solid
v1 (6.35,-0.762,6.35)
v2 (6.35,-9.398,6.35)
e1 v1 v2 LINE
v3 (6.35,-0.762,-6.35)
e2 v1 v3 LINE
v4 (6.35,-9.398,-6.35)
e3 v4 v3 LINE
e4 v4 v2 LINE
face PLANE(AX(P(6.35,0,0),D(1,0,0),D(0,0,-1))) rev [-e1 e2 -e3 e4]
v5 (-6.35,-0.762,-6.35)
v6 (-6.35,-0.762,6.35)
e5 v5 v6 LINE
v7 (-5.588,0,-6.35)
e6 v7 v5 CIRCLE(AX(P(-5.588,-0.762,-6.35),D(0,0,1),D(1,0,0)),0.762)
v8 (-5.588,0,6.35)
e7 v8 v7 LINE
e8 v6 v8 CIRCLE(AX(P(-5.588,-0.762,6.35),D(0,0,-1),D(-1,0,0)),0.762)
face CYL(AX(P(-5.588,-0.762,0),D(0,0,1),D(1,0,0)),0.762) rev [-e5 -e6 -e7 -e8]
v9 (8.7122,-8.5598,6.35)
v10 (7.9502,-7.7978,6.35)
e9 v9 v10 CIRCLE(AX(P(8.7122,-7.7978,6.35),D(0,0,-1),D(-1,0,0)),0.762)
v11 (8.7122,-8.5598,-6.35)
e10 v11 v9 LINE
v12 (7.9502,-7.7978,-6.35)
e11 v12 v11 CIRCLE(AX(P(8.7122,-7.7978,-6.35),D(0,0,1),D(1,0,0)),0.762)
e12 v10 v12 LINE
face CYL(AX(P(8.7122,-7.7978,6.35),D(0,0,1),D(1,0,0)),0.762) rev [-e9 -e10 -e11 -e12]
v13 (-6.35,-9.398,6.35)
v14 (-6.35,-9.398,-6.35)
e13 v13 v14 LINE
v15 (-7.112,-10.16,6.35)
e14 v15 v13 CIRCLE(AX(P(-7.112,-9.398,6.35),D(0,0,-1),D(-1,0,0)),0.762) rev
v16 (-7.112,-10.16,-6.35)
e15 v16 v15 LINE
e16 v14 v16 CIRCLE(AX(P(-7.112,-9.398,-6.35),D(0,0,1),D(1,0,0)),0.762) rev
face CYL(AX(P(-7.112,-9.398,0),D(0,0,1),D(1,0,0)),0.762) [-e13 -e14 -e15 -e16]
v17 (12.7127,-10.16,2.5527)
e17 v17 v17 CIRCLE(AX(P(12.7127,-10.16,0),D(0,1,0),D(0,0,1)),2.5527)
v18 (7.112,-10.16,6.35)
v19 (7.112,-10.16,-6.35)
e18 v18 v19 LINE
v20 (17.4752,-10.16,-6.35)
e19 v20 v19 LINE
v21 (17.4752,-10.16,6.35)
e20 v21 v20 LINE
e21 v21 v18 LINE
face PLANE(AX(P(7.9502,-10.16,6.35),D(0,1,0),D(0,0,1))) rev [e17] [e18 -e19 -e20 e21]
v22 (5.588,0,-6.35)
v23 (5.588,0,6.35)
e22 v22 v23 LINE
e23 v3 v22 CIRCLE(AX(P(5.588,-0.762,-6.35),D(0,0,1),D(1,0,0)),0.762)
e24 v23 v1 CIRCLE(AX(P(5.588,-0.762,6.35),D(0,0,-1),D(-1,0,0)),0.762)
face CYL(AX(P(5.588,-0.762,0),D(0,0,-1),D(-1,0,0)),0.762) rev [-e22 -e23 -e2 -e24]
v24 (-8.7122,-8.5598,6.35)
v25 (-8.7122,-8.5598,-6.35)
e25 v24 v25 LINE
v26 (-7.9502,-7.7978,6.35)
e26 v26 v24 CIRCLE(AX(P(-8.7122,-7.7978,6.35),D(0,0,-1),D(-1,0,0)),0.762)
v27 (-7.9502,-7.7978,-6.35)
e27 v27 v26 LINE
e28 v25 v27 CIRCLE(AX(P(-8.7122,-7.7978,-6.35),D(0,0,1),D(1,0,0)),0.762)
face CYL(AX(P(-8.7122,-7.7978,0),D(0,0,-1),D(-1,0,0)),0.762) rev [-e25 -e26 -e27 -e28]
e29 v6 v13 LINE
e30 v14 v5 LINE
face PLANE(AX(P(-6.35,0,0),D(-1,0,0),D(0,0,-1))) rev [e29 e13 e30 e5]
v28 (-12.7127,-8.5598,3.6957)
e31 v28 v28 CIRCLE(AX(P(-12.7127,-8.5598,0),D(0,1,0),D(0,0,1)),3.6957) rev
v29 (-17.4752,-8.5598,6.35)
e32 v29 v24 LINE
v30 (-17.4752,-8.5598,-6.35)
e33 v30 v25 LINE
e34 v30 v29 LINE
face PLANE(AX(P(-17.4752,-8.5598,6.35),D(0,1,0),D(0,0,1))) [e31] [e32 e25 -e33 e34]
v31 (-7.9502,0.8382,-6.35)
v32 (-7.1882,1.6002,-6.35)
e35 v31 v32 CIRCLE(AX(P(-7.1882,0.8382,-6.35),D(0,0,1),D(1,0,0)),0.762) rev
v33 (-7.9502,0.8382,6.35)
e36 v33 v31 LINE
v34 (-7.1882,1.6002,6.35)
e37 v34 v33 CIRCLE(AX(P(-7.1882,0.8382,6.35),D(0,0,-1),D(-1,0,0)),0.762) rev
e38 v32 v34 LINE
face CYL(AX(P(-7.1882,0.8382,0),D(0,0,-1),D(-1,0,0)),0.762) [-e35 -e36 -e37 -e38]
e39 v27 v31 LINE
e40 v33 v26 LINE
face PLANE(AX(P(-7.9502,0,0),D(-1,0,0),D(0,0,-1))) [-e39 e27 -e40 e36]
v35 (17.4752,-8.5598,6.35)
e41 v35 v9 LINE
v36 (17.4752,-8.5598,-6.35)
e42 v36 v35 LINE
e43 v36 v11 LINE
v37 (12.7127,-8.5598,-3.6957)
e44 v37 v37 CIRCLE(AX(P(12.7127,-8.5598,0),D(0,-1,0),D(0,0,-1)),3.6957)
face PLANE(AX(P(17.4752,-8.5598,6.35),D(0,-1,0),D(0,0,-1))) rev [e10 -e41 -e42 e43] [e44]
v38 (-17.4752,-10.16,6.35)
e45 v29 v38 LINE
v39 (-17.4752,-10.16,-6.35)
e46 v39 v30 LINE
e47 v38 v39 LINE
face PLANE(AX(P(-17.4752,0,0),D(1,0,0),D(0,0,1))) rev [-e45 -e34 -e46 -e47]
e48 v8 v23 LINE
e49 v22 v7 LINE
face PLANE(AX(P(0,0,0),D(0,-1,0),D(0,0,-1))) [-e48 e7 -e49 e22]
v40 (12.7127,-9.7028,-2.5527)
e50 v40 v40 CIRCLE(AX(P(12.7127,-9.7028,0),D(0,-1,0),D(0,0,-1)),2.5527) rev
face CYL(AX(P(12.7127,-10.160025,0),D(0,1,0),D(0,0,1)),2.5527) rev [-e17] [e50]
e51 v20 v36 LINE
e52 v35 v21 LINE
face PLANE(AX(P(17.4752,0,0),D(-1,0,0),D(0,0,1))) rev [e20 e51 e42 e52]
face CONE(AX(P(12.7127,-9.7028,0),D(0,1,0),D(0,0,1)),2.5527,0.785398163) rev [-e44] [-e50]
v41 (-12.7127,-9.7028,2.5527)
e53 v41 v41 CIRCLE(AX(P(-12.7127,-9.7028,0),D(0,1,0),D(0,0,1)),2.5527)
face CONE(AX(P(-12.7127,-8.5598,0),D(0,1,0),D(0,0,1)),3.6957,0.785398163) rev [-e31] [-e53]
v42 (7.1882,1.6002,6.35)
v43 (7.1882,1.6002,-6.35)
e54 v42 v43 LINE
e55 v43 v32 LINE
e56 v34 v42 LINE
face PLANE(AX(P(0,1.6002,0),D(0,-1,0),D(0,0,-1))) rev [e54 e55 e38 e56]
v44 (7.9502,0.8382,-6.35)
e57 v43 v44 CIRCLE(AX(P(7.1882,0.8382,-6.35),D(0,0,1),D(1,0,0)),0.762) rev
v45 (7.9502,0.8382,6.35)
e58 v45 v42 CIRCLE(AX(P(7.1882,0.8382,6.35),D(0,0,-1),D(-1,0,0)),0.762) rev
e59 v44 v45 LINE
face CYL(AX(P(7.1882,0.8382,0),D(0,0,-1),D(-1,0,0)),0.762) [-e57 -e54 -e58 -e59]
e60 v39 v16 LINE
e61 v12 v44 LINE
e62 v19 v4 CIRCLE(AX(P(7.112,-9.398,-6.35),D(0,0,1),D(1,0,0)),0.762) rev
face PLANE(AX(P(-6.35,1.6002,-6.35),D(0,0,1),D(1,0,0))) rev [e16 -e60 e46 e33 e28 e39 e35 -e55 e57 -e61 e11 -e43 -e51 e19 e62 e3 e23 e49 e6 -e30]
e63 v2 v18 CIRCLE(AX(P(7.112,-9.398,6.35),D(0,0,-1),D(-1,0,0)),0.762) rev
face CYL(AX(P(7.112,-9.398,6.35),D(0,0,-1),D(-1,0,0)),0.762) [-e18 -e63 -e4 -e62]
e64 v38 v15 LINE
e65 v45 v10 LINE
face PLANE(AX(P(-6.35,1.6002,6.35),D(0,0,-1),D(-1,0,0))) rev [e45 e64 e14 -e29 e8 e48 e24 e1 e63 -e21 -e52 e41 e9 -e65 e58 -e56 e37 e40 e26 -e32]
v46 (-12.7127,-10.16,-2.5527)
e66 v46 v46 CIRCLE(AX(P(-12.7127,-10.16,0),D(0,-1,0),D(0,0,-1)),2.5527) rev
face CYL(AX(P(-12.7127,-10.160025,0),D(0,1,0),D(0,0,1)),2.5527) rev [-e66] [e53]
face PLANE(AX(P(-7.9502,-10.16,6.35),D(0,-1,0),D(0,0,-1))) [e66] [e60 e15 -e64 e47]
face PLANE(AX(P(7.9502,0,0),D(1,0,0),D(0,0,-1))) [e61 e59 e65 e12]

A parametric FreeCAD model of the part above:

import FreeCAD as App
import Part
import Sketcher
from FreeCAD import Vector
Q = App.Units.Quantity


def edges_at(feature, points):
    """Names of the edges that pass closest to the given points."""
    edges = feature.Shape.Edges
    near = lambda p: min(range(len(edges)), key=lambda i: edges[i].distToShape(Part.Vertex(*p))[0])
    return sorted({f"Edge{near(p) + 1}" for p in points})

doc = App.newDocument("Part")
body = doc.addObject("PartDesign::Body", "Body")

# Sketch on XZ plane
sketch1 = doc.addObject("Sketcher::SketchObject", "Sketch")
body.addObject(sketch1)
sketch1.AttachmentSupport = (doc.XZ_Plane, [""])
sketch1.MapMode = "FlatFace"
sketch1.addGeometry([
    Part.LineSegment(Vector(-6, -6, 0), Vector(-6, 6, 0)),
    Part.LineSegment(Vector(-6, 6, 0), Vector(6, 6, 0)),
    Part.LineSegment(Vector(6, 6, 0), Vector(6, -6, 0)),
    Part.LineSegment(Vector(6, -6, 0), Vector(-6, -6, 0)),
], False)
sketch1.addConstraint([
    Sketcher.Constraint("Coincident", 0, 2, 1, 1),
    Sketcher.Constraint("Coincident", 1, 2, 2, 1),
    Sketcher.Constraint("Coincident", 2, 2, 3, 1),
    Sketcher.Constraint("Coincident", 3, 2, 0, 1),
    Sketcher.Constraint("Vertical", 0),
    Sketcher.Constraint("Horizontal", 1),
    Sketcher.Constraint("Vertical", 2),
    Sketcher.Constraint("Horizontal", 3),
    Sketcher.Constraint("Symmetric", 0, 2, 2, 2, -1, 1),
    Sketcher.Constraint("Equal", 3, 0),
    Sketcher.Constraint("DistanceX", 1, 1, 1, 2, Q("0.5 in")),
])
pad1 = doc.addObject("PartDesign::Pad", "Pad")
body.addObject(pad1)
pad1.Profile = sketch1
pad1.Length = Q("0.063 in")
pad1.Reversed = True

# Sketch on YZ plane
sketch2 = doc.addObject("Sketcher::SketchObject", "Sketch001")
body.addObject(sketch2)
sketch2.AttachmentSupport = (doc.YZ_Plane, [""])
sketch2.MapMode = "FlatFace"
sketch2.AttachmentOffset = App.Placement(Vector(0, 0, 0.25 * 25.4), App.Rotation())
sketch2.addGeometry([
    Part.LineSegment(Vector(2, 6, 0), Vector(-10, 6, 0)),
    Part.LineSegment(Vector(-10, 6, 0), Vector(-10, -6, 0)),
    Part.LineSegment(Vector(-10, -6, 0), Vector(2, -6, 0)),
    Part.LineSegment(Vector(2, -6, 0), Vector(2, 6, 0)),
], False)
sketch2.addConstraint([
    Sketcher.Constraint("Coincident", 0, 2, 1, 1),
    Sketcher.Constraint("Coincident", 1, 2, 2, 1),
    Sketcher.Constraint("Coincident", 2, 2, 3, 1),
    Sketcher.Constraint("Coincident", 3, 2, 0, 1),
    Sketcher.Constraint("Horizontal", 0),
    Sketcher.Constraint("Vertical", 1),
    Sketcher.Constraint("Horizontal", 2),
    Sketcher.Constraint("Vertical", 3),
    Sketcher.Constraint("DistanceY", 1, 2, 1, 1, Q("0.5 in")),
    Sketcher.Constraint("DistanceX", 0, 2, -1, 1, Q("0.4 in")),
    Sketcher.Constraint("DistanceX", 0, 2, 0, 1, Q("0.463 in")),
    Sketcher.Constraint("DistanceY", -1, 1, 0, 2, Q("0.25 in")),
])
pad2 = doc.addObject("PartDesign::Pad", "Pad001")
body.addObject(pad2)
pad2.Profile = sketch2
pad2.Length = Q("0.063 in")

# Sketch on YZ plane
sketch3 = doc.addObject("Sketcher::SketchObject", "Sketch002")
body.addObject(sketch3)
sketch3.AttachmentSupport = (doc.YZ_Plane, [""])
sketch3.MapMode = "FlatFace"
sketch3.AttachmentOffset = App.Placement(Vector(0, 0, 0.313 * 25.4), App.Rotation())
sketch3.addGeometry([
    Part.LineSegment(Vector(-8.6, 6.3, 0), Vector(-10.2, 6.3, 0)),
    Part.LineSegment(Vector(-10.2, 6.3, 0), Vector(-10.2, -6.3, 0)),
    Part.LineSegment(Vector(-10.2, -6.3, 0), Vector(-8.6, -6.3, 0)),
    Part.LineSegment(Vector(-8.6, -6.3, 0), Vector(-8.6, 6.3, 0)),
], False)
sketch3.addConstraint([
    Sketcher.Constraint("Coincident", 0, 2, 1, 1),
    Sketcher.Constraint("Coincident", 1, 2, 2, 1),
    Sketcher.Constraint("Coincident", 2, 2, 3, 1),
    Sketcher.Constraint("Coincident", 3, 2, 0, 1),
    Sketcher.Constraint("Horizontal", 0),
    Sketcher.Constraint("Vertical", 1),
    Sketcher.Constraint("Horizontal", 2),
    Sketcher.Constraint("Vertical", 3),
    Sketcher.Constraint("DistanceY", 1, 2, 1, 1, Q("0.5 in")),
    Sketcher.Constraint("DistanceX", 0, 2, -1, 1, Q("0.4 in")),
    Sketcher.Constraint("DistanceX", 0, 2, 0, 1, Q("0.063 in")),
    Sketcher.Constraint("DistanceY", -1, 1, 0, 2, Q("0.25 in")),
])
pad3 = doc.addObject("PartDesign::Pad", "Pad002")
body.addObject(pad3)
pad3.Profile = sketch3
pad3.Length = Q("0.375 in")

# Sketch on XZ plane
sketch4 = doc.addObject("Sketcher::SketchObject", "Sketch003")
body.addObject(sketch4)
sketch4.AttachmentSupport = (doc.XZ_Plane, [""])
sketch4.MapMode = "FlatFace"
sketch4.AttachmentOffset = App.Placement(Vector(0, 0, 0.337 * 25.4), App.Rotation())
sketch4.addGeometry(Part.Circle(Vector(12.7, 0, 0), Vector(0, 0, 1), 2.6), False)
sketch4.addConstraint([
    Sketcher.Constraint("PointOnObject", 0, 3, -1),
    Sketcher.Constraint("Diameter", 0, Q("0.201 in")),
    Sketcher.Constraint("DistanceX", -1, 1, 0, 3, Q("0.5005 in")),
])
pocket1 = doc.addObject("PartDesign::Pocket", "Pocket")
body.addObject(pocket1)
pocket1.Profile = sketch4
pocket1.Type = "ThroughAll"
pocket1.Reversed = True
doc.recompute()

mirrored = doc.addObject("PartDesign::Mirrored", "Mirrored")
body.addObject(mirrored)
mirrored.Originals = [pad2, pad3, pocket1]
mirrored.MirrorPlane = (doc.YZ_Plane, [""])
body.Tip = mirrored
doc.recompute()

fillet = doc.addObject("PartDesign::Fillet", "Fillet")
body.addObject(fillet)
fillet.Base = (mirrored, edges_at(mirrored, [
    (6.35, -10.16, 0),
    (-6.35, -10.16, 0),
    (6.35, 0, 0),
    (-6.35, 0, 0),
    (-7.95, -8.56, 0),
    (-7.95, 1.6, 0),
    (7.95, 1.6, 0),
    (7.95, -8.56, 0),
]))
fillet.Radius = Q("0.03 in")
doc.recompute()

chamfer = doc.addObject("PartDesign::Chamfer", "Chamfer")
body.addObject(chamfer)
chamfer.Base = (fillet, edges_at(fillet, [(12.713, -8.56, -2.553), (-12.713, -8.56, -2.553)]))
chamfer.Size = Q("0.045 in")

doc.recompute()
